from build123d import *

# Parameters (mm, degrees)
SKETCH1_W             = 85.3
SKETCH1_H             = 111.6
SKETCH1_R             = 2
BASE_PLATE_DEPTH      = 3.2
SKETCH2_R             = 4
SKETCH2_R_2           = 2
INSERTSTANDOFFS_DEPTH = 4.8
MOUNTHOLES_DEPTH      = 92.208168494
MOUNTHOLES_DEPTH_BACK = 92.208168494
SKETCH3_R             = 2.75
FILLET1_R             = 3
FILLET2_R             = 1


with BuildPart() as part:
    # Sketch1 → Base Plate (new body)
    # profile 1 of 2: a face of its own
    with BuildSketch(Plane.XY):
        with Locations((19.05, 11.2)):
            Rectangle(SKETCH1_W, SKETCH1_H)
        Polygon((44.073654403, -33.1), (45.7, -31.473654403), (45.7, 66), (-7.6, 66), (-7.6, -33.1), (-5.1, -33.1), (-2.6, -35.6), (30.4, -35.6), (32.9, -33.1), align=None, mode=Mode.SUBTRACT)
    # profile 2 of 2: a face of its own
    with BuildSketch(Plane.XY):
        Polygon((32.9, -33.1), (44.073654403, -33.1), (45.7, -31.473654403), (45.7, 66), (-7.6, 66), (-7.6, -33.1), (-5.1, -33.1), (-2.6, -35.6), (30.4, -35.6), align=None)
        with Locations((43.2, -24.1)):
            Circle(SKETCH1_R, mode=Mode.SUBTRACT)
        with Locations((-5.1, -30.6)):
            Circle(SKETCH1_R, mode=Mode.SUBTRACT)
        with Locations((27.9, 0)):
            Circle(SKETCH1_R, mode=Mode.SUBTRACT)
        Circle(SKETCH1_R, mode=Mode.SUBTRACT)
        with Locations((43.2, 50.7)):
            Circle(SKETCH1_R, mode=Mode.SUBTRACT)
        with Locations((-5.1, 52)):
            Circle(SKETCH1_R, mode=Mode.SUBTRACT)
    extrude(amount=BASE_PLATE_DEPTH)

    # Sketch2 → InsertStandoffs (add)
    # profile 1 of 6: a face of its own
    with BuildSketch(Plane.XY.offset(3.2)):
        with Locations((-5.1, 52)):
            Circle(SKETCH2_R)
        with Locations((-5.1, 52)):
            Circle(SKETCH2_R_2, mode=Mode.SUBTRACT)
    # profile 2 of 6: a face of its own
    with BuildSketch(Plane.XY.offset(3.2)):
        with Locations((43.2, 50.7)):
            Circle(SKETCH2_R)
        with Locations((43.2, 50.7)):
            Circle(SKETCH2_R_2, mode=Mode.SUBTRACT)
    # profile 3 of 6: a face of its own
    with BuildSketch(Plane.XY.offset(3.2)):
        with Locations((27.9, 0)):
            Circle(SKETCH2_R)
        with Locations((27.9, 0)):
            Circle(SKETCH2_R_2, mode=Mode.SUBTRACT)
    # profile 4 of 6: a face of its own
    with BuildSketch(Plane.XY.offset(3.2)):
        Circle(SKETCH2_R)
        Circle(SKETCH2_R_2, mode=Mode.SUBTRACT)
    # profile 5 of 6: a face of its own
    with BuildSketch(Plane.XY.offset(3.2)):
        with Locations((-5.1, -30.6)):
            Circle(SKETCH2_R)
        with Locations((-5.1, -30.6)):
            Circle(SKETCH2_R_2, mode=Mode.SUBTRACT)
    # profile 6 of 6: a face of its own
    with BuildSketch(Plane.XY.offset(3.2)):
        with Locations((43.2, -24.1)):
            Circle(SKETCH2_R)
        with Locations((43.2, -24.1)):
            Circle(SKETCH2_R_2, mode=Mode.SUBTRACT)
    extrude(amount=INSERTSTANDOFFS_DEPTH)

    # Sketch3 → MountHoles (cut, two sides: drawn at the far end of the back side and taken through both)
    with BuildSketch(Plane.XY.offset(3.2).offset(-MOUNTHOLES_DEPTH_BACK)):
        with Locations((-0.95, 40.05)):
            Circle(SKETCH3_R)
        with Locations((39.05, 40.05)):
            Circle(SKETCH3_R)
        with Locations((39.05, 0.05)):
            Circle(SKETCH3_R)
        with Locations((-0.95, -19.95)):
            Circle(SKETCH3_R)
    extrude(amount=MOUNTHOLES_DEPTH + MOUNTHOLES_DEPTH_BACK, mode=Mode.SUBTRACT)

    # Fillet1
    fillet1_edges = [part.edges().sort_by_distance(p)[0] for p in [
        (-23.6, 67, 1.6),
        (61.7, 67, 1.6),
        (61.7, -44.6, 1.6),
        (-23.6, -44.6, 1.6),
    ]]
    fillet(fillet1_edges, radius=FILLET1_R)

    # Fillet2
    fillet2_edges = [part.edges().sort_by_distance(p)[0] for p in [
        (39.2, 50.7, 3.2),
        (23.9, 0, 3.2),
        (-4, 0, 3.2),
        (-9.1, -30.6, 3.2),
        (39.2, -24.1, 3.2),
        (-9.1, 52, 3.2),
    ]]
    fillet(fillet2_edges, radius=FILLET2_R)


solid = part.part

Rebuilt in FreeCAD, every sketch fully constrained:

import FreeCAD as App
import Part
import Sketcher


def edges_at(feature, points):
    """Names of the edges that pass closest to the given points."""
    edges = feature.Shape.Edges
    near = lambda p: min(range(len(edges)), key=lambda i: edges[i].distToShape(Part.Vertex(*p))[0])
    return sorted({f"Edge{near(p) + 1}" for p in points})


def add_polygon(sketch, points):
    """Adds a closed chain of lines whose ends are joined by coincident constraints."""
    first, n = sketch.GeometryCount, len(points)
    for a, b in zip(points, points[1:] + points[:1]):
        sketch.addGeometry(Part.LineSegment(App.Vector(*a, 0), App.Vector(*b, 0)), False)
    for i in range(n):
        sketch.addConstraint(Sketcher.Constraint("Coincident", first + i, 2, first + (i + 1) % n, 1))

doc = App.newDocument("Part")
body = doc.addObject("PartDesign::Body", "Body")

sketch1 = body.newObject("Sketcher::SketchObject", "Sketch")
sketch1.AttachmentSupport = (doc.getObject("XY_Plane"), [""])
sketch1.MapMode = "FlatFace"
add_polygon(sketch1, [(-23.6, 67), (-23.6, -44.6), (61.7, -44.6), (61.7, 67)])
sketch1.addGeometry(Part.Circle(App.Vector(27.9, 0, 0), App.Vector(0, 0, 1), 2), False)
sketch1.addGeometry(Part.Circle(App.Vector(0, 0, 0), App.Vector(0, 0, 1), 2), False)
sketch1.addGeometry(Part.Circle(App.Vector(43.2, 50.7, 0), App.Vector(0, 0, 1), 2), False)
sketch1.addGeometry(Part.Circle(App.Vector(43.2, -24.1, 0), App.Vector(0, 0, 1), 2), False)
sketch1.addGeometry(Part.Circle(App.Vector(-5.1, 52, 0), App.Vector(0, 0, 1), 2), False)
sketch1.addGeometry(Part.Circle(App.Vector(-5.1, -30.6, 0), App.Vector(0, 0, 1), 2), False)
sketch1.addConstraint(Sketcher.Constraint("Vertical", 0))
sketch1.addConstraint(Sketcher.Constraint("Horizontal", 1))
sketch1.addConstraint(Sketcher.Constraint("Vertical", 2))
sketch1.addConstraint(Sketcher.Constraint("Horizontal", 3))
sketch1.addConstraint(Sketcher.Constraint("Coincident", 5, 3, -1, 1))
sketch1.addConstraint(Sketcher.Constraint("Equal", 4, 5))
sketch1.addConstraint(Sketcher.Constraint("Equal", 5, 6))
sketch1.addConstraint(Sketcher.Constraint("Equal", 6, 7))
sketch1.addConstraint(Sketcher.Constraint("Equal", 7, 8))
sketch1.addConstraint(Sketcher.Constraint("Equal", 8, 9))
sketch1.addConstraint(Sketcher.Constraint("PointOnObject", 4, 3, -1))
sketch1.addConstraint(Sketcher.Constraint("Vertical", 6, 3, 7, 3))
sketch1.addConstraint(Sketcher.Constraint("Vertical", 8, 3, 9, 3))
sketch1.addConstraint(Sketcher.Constraint("Diameter", 4, 4.0))
sketch1.addConstraint(Sketcher.Constraint("DistanceX", 1, 1, 1, 2, 85.3))
sketch1.addConstraint(Sketcher.Constraint("DistanceY", 0, 2, 0, 1, 111.6))
sketch1.addConstraint(Sketcher.Constraint("DistanceY", -1, 1, 8, 3, 52.0))
sketch1.addConstraint(Sketcher.Constraint("DistanceY", -1, 1, 2, 2, 67.0))
sketch1.addConstraint(Sketcher.Constraint("DistanceX", 8, 3, 4, 3, 33.0))
sketch1.addConstraint(Sketcher.Constraint("DistanceY", 0, 2, 9, 3, 14.0))
sketch1.addConstraint(Sketcher.Constraint("DistanceX", -1, 1, 4, 3, 27.9))
sketch1.addConstraint(Sketcher.Constraint("DistanceX", -1, 1, 6, 3, 43.2))
sketch1.addConstraint(Sketcher.Constraint("DistanceY", -1, 1, 6, 3, 50.7))
sketch1.addConstraint(Sketcher.Constraint("DistanceY", 7, 3, -1, 1, 24.1))
sketch1.addConstraint(Sketcher.Constraint("DistanceX", 0, 2, -1, 1, 23.6))
pad1 = body.newObject("PartDesign::Pad", "Pad")
pad1.Profile = sketch1
pad1.Length = 3.2

sketch2 = body.newObject("Sketcher::SketchObject", "Sketch001")
sketch2.AttachmentSupport = (doc.getObject("XY_Plane"), [""])
sketch2.MapMode = "FlatFace"
sketch2.AttachmentOffset = App.Placement(App.Vector(0, 0, 3.2), App.Rotation())
sketch2.addGeometry(Part.Circle(App.Vector(-5.1, 52, 0), App.Vector(0, 0, 1), 4), False)
sketch2.addGeometry(Part.Circle(App.Vector(-5.1, 52, 0), App.Vector(0, 0, 1), 2), False)
sketch2.addGeometry(Part.Circle(App.Vector(43.2, 50.7, 0), App.Vector(0, 0, 1), 4), False)
sketch2.addGeometry(Part.Circle(App.Vector(43.2, 50.7, 0), App.Vector(0, 0, 1), 2), False)
sketch2.addGeometry(Part.Circle(App.Vector(27.9, 0, 0), App.Vector(0, 0, 1), 4), False)
sketch2.addGeometry(Part.Circle(App.Vector(27.9, 0, 0), App.Vector(0, 0, 1), 2), False)
sketch2.addGeometry(Part.Circle(App.Vector(0, 0, 0), App.Vector(0, 0, 1), 4), False)
sketch2.addGeometry(Part.Circle(App.Vector(0, 0, 0), App.Vector(0, 0, 1), 2), False)
sketch2.addGeometry(Part.Circle(App.Vector(-5.1, -30.6, 0), App.Vector(0, 0, 1), 4), False)
sketch2.addGeometry(Part.Circle(App.Vector(-5.1, -30.6, 0), App.Vector(0, 0, 1), 2), False)
sketch2.addGeometry(Part.Circle(App.Vector(43.2, -24.1, 0), App.Vector(0, 0, 1), 4), False)
sketch2.addGeometry(Part.Circle(App.Vector(43.2, -24.1, 0), App.Vector(0, 0, 1), 2), False)
sketch2.addConstraint(Sketcher.Constraint("Coincident", 6, 3, -1, 1))
sketch2.addConstraint(Sketcher.Constraint("Coincident", 7, 3, -1, 1))
sketch2.addConstraint(Sketcher.Constraint("Coincident", 1, 3, 0, 3))
sketch2.addConstraint(Sketcher.Constraint("Coincident", 3, 3, 2, 3))
sketch2.addConstraint(Sketcher.Constraint("Coincident", 5, 3, 4, 3))
sketch2.addConstraint(Sketcher.Constraint("Coincident", 9, 3, 8, 3))
sketch2.addConstraint(Sketcher.Constraint("Coincident", 11, 3, 10, 3))
sketch2.addConstraint(Sketcher.Constraint("Equal", 0, 2))
sketch2.addConstraint(Sketcher.Constraint("Equal", 1, 3))
sketch2.addConstraint(Sketcher.Constraint("Equal", 2, 4))
sketch2.addConstraint(Sketcher.Constraint("Equal", 3, 5))
sketch2.addConstraint(Sketcher.Constraint("Equal", 4, 6))
sketch2.addConstraint(Sketcher.Constraint("Equal", 5, 7))
sketch2.addConstraint(Sketcher.Constraint("Equal", 6, 8))
sketch2.addConstraint(Sketcher.Constraint("Equal", 7, 9))
sketch2.addConstraint(Sketcher.Constraint("Equal", 8, 10))
sketch2.addConstraint(Sketcher.Constraint("Equal", 9, 11))
sketch2.addConstraint(Sketcher.Constraint("PointOnObject", 4, 3, -1))
sketch2.addConstraint(Sketcher.Constraint("Vertical", 1, 3, 8, 3))
sketch2.addConstraint(Sketcher.Constraint("Vertical", 3, 3, 10, 3))
sketch2.addConstraint(Sketcher.Constraint("Diameter", 0, 8.0))
sketch2.addConstraint(Sketcher.Constraint("Diameter", 1, 4.0))
sketch2.addConstraint(Sketcher.Constraint("DistanceY", -1, 1, 0, 3, 52.0))
sketch2.addConstraint(Sketcher.Constraint("DistanceX", 0, 3, 4, 3, 33.0))
sketch2.addConstraint(Sketcher.Constraint("DistanceX", 0, 3, -1, 1, 5.1))
sketch2.addConstraint(Sketcher.Constraint("DistanceX", -1, 1, 2, 3, 43.2))
sketch2.addConstraint(Sketcher.Constraint("DistanceY", -1, 1, 2, 3, 50.7))
sketch2.addConstraint(Sketcher.Constraint("DistanceY", 8, 3, -1, 1, 30.6))
sketch2.addConstraint(Sketcher.Constraint("DistanceY", 10, 3, -1, 1, 24.1))
pad2 = body.newObject("PartDesign::Pad", "Pad001")
pad2.Profile = sketch2
pad2.Length = 4.8

sketch3 = body.newObject("Sketcher::SketchObject", "Sketch002")
sketch3.AttachmentSupport = (doc.getObject("XY_Plane"), [""])
sketch3.MapMode = "FlatFace"
sketch3.AttachmentOffset = App.Placement(App.Vector(0, 0, 3.2), App.Rotation())
sketch3.addGeometry(Part.Circle(App.Vector(-0.95, 40.05, 0), App.Vector(0, 0, 1), 2.75), False)
sketch3.addGeometry(Part.Circle(App.Vector(39.05, 40.05, 0), App.Vector(0, 0, 1), 2.75), False)
sketch3.addGeometry(Part.Circle(App.Vector(39.05, 0.05, 0), App.Vector(0, 0, 1), 2.75), False)
sketch3.addGeometry(Part.Circle(App.Vector(-0.95, -19.95, 0), App.Vector(0, 0, 1), 2.75), False)
sketch3.addConstraint(Sketcher.Constraint("Equal", 0, 1))
sketch3.addConstraint(Sketcher.Constraint("Equal", 1, 2))
sketch3.addConstraint(Sketcher.Constraint("Equal", 2, 3))
sketch3.addConstraint(Sketcher.Constraint("Horizontal", 0, 3, 1, 3))
sketch3.addConstraint(Sketcher.Constraint("Vertical", 1, 3, 2, 3))
sketch3.addConstraint(Sketcher.Constraint("Vertical", 0, 3, 3, 3))
sketch3.addConstraint(Sketcher.Constraint("Diameter", 0, 5.5))
sketch3.addConstraint(Sketcher.Constraint("DistanceX", 0, 3, 1, 3, 40.0))
sketch3.addConstraint(Sketcher.Constraint("DistanceY", 2, 3, 1, 3, 40.0))
sketch3.addConstraint(Sketcher.Constraint("DistanceY", 3, 3, 2, 3, 20.0))
sketch3.addConstraint(Sketcher.Constraint("DistanceX", 0, 3, -1, 1, 0.95))
sketch3.addConstraint(Sketcher.Constraint("DistanceY", -1, 1, 0, 3, 40.05))
pocket1 = body.newObject("PartDesign::Pocket", "Pocket")
pocket1.Profile = sketch3
pocket1.Type = "ThroughAll"
pocket1.Midplane = True
doc.recompute()

fillet = body.newObject("PartDesign::Fillet", "Fillet")
fillet.Base = (pocket1, edges_at(pocket1, [
    (-23.6, 67, 1.6),
    (61.7, 67, 1.6),
    (61.7, -44.6, 1.6),
    (-23.6, -44.6, 1.6),
]))
fillet.Radius = 3
doc.recompute()

fillet2 = body.newObject("PartDesign::Fillet", "Fillet001")
fillet2.Base = (fillet, edges_at(fillet, [
    (39.2, 50.7, 3.2),
    (23.9, 0, 3.2),
    (-4, 0, 3.2),
    (-9.1, -30.6, 3.2),
    (39.2, -24.1, 3.2),
    (-9.1, 52, 3.2),
]))
fillet2.Radius = 1

doc.recompute()
